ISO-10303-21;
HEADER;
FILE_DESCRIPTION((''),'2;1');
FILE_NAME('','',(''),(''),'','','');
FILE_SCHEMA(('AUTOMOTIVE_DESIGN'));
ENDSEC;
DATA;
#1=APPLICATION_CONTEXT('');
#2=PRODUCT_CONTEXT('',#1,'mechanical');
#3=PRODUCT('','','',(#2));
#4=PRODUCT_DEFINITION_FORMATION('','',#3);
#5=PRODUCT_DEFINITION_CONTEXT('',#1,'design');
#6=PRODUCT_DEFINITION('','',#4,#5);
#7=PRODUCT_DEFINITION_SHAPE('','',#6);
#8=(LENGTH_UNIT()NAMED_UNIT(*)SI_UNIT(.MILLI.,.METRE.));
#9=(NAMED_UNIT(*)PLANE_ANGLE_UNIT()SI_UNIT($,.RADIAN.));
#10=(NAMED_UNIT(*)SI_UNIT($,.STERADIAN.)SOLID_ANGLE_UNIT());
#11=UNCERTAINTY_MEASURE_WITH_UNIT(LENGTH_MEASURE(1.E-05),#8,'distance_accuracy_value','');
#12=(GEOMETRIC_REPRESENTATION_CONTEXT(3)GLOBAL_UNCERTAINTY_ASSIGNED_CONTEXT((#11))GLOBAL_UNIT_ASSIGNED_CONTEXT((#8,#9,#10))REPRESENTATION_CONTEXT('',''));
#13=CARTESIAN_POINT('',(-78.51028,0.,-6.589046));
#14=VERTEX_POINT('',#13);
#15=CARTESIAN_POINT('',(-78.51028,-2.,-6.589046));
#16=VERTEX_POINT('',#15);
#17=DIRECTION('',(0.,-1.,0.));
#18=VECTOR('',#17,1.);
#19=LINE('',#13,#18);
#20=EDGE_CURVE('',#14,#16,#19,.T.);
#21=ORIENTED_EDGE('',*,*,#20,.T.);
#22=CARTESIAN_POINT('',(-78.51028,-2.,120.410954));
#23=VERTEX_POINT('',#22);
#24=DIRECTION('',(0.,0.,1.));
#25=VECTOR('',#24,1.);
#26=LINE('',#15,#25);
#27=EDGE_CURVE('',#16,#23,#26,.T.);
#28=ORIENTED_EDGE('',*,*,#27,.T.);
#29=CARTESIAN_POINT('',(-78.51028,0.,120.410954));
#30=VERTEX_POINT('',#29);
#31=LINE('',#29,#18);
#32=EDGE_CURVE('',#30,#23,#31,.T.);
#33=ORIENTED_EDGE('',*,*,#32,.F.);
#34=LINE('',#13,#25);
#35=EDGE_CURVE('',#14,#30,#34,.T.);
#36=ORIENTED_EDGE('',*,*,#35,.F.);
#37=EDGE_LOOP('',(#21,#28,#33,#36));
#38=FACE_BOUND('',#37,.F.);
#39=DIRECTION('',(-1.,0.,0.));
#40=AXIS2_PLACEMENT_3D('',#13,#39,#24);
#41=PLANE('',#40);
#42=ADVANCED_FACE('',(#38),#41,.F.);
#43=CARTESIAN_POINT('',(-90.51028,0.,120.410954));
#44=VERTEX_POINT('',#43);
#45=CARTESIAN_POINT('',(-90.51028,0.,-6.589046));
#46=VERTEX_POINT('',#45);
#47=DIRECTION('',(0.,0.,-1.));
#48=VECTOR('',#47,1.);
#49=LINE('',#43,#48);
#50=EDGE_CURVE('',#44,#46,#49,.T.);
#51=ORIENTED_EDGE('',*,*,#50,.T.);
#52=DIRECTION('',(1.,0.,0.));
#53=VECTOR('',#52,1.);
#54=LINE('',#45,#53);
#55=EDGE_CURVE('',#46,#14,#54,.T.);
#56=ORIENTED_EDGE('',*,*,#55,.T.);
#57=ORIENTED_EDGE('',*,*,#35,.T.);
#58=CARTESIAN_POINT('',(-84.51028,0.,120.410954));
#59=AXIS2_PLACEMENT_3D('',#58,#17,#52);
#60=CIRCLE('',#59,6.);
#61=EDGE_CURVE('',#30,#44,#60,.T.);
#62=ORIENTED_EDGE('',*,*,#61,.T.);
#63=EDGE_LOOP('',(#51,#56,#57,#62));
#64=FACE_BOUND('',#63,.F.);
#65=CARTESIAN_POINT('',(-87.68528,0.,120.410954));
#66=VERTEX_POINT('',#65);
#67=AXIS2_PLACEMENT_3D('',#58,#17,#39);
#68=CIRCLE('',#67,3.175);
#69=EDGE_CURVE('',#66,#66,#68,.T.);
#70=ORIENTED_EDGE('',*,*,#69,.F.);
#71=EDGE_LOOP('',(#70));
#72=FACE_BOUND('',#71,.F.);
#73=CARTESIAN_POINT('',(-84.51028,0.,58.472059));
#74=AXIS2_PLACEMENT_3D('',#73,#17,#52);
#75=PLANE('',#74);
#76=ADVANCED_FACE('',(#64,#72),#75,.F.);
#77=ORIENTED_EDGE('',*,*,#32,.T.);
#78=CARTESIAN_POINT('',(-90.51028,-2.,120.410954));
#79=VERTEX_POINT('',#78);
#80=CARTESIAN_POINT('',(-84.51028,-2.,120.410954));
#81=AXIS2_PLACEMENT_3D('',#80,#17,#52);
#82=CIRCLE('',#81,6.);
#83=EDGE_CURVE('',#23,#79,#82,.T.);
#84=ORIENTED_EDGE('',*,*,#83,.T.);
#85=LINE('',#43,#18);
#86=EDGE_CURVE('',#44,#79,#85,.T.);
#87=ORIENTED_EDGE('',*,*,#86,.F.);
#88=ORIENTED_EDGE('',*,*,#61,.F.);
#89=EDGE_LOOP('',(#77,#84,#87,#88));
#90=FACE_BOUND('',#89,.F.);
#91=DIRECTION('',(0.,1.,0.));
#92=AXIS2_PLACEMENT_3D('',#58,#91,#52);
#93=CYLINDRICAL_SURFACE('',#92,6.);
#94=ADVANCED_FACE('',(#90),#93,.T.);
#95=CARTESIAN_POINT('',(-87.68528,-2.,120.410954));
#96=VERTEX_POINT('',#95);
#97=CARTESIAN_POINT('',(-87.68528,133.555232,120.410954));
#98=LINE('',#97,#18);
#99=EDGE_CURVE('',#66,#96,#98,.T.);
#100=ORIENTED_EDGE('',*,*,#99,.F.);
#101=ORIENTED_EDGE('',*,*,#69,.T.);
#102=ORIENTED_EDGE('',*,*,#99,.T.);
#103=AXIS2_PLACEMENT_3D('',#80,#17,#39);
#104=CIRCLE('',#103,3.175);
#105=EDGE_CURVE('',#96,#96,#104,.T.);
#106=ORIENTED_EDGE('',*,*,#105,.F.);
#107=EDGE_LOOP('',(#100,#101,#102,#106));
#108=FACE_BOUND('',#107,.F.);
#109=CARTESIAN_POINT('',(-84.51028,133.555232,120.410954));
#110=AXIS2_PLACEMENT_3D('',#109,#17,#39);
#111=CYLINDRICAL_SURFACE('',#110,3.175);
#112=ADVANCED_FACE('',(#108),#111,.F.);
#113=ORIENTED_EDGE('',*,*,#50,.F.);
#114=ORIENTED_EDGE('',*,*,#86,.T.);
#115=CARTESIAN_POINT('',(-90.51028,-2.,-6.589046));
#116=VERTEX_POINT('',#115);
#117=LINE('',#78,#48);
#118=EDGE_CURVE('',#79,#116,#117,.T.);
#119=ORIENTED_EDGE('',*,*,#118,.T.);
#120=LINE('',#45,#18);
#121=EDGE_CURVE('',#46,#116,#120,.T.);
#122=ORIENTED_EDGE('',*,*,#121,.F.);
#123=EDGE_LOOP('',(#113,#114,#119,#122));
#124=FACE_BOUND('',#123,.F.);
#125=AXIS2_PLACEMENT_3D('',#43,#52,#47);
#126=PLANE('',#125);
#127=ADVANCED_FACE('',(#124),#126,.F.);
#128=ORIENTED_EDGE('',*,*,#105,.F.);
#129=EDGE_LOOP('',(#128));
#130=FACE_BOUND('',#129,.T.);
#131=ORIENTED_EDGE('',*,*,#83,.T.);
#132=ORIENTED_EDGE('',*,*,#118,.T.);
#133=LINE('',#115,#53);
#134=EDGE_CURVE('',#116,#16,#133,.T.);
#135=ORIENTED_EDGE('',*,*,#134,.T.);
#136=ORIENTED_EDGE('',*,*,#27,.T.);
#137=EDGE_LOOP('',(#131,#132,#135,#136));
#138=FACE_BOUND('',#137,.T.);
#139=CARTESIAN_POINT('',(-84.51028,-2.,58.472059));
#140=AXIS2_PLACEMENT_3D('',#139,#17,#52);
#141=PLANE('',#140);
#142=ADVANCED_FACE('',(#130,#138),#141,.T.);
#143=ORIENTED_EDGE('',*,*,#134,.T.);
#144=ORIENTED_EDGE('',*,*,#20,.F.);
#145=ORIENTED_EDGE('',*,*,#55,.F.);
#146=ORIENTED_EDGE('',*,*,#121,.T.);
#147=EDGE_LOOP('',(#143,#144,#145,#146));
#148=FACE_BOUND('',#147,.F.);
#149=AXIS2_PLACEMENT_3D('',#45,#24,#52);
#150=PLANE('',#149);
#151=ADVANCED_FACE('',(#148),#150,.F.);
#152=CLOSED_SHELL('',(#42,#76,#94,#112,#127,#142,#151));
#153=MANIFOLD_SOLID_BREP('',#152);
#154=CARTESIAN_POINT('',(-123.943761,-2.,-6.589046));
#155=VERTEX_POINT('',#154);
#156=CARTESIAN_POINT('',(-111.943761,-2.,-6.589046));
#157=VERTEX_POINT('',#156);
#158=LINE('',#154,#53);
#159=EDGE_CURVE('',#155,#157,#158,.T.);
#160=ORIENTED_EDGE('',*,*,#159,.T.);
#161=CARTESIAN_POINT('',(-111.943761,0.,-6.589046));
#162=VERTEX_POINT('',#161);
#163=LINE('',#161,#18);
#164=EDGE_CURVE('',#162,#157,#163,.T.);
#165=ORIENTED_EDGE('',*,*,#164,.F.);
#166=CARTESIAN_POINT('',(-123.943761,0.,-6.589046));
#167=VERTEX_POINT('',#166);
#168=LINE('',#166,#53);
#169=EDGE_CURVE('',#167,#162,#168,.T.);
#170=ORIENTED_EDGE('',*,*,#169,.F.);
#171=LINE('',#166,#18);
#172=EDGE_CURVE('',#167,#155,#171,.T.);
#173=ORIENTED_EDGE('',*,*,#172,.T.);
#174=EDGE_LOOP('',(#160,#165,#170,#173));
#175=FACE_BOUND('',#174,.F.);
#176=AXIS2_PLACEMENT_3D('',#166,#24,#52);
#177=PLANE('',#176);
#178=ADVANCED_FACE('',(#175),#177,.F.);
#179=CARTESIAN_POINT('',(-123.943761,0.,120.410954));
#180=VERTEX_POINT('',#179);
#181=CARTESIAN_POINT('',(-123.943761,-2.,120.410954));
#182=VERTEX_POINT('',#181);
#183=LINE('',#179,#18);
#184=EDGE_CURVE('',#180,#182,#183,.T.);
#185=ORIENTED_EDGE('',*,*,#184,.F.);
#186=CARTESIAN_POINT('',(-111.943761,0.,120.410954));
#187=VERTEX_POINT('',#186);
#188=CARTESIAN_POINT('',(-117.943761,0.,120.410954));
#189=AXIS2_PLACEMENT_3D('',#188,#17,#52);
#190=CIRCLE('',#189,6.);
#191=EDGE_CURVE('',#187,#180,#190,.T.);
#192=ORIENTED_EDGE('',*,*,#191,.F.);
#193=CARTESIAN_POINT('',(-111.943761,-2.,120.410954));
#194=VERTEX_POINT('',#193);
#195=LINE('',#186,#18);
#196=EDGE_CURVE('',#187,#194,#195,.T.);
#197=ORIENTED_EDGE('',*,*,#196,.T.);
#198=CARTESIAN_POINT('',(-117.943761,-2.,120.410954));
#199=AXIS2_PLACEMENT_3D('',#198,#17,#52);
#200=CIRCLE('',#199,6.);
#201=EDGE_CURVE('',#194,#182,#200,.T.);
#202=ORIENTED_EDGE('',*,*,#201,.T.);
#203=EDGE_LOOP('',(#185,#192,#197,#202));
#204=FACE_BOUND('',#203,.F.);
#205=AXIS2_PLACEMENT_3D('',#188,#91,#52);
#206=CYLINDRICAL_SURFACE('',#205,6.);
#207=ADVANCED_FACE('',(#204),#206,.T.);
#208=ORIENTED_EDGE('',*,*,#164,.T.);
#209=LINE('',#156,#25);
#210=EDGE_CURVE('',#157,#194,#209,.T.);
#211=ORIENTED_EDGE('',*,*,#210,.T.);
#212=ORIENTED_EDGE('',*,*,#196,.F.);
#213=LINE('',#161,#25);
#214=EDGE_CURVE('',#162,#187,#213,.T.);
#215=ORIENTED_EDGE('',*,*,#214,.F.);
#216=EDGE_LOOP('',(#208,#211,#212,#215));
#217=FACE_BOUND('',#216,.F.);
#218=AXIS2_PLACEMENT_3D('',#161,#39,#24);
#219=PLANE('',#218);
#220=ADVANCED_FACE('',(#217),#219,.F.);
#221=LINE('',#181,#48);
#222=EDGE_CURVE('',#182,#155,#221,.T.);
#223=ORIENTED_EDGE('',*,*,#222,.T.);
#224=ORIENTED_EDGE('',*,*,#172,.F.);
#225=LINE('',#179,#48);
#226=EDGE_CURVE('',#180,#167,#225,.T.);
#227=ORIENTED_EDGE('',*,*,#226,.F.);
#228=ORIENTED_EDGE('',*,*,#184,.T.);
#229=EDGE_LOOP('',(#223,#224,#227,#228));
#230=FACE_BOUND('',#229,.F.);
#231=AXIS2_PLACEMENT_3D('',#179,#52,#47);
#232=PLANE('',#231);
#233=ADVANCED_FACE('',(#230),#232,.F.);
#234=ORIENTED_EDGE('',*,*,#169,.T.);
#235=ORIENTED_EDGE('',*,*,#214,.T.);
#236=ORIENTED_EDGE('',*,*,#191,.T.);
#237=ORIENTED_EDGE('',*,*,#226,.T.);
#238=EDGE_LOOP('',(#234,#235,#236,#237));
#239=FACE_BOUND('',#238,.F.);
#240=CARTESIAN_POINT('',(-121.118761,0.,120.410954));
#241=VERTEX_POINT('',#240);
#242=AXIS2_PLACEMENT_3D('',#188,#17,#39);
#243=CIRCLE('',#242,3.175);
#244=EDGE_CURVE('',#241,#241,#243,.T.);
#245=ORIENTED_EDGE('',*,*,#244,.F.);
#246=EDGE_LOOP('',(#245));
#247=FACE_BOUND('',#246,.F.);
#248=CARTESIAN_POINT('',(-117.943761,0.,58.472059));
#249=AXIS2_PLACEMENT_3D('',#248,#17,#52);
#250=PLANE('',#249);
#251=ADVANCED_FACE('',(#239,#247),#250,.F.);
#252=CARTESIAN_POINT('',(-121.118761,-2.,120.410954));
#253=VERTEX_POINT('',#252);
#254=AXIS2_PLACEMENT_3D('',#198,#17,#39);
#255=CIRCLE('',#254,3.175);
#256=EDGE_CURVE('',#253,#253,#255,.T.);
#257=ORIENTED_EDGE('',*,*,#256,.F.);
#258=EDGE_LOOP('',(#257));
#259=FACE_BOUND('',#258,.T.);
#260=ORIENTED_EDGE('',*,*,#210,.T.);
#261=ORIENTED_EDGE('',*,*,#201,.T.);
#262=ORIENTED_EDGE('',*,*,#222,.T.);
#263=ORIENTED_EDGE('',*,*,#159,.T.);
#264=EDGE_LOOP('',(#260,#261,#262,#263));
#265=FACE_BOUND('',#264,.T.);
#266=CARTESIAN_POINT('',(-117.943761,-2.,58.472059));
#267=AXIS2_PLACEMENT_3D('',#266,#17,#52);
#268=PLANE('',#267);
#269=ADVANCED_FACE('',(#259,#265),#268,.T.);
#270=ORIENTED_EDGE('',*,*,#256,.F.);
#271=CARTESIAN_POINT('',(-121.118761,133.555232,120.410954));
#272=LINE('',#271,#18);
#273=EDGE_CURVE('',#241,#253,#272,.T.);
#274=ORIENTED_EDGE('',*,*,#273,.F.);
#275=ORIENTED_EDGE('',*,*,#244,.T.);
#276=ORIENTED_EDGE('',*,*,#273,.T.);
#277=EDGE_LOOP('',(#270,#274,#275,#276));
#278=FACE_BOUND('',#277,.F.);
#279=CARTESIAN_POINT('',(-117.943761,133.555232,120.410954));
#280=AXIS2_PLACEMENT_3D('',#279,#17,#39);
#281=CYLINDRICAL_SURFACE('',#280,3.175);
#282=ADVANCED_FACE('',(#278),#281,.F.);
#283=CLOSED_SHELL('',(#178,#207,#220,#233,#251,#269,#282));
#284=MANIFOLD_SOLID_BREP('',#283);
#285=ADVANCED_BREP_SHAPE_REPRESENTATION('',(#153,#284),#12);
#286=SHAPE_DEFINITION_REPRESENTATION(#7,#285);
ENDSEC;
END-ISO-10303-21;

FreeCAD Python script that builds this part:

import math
import FreeCAD as App
import Part
import Sketcher
Q = App.Units.Quantity

doc = App.newDocument("Part")
body = doc.addObject("PartDesign::Body", "Body")

# Sketch on XZ plane
sketch1 = doc.addObject("Sketcher::SketchObject", "Sketch")
body.addObject(sketch1)
sketch1.AttachmentSupport = (doc.XZ_Plane, [""])
sketch1.MapMode = "FlatFace"
sketch1.addGeometry([
    Part.LineSegment(App.Vector(-111.9, -6.6, 0), App.Vector(-111.9, 120.4, 0)),  # 0
    Part.ArcOfCircle(Part.Circle(App.Vector(-117.9, 120.4, 0), App.Vector(0, 0, 1), 6), math.radians(0), math.radians(180)),  # 1
    Part.LineSegment(App.Vector(-123.9, 120.4, 0), App.Vector(-123.9, -6.6, 0)),  # 2
    Part.LineSegment(App.Vector(-123.9, -6.6, 0), App.Vector(-111.9, -6.6, 0)),  # 3
    Part.Circle(App.Vector(-117.9, 120.4, 0), App.Vector(0, 0, 1), 2.2),  # 4
], False)
sketch1.addConstraint([
    Sketcher.Constraint("Tangent", 0, 2, 1, 1),
    Sketcher.Constraint("Tangent", 1, 2, 2, 1),
    Sketcher.Constraint("Coincident", 2, 2, 3, 1),
    Sketcher.Constraint("Coincident", 3, 2, 0, 1),
    Sketcher.Constraint("Vertical", 0),
    Sketcher.Constraint("Vertical", 2),
    Sketcher.Constraint("Horizontal", 3),
    Sketcher.Constraint("Coincident", 4, 3, 1, 3),
    Sketcher.Constraint("DistanceY", 0, 1, 0, 2, Q("5 in")),
    Sketcher.Constraint("Diameter", 4, Q("0.175 in")),
    Sketcher.Constraint("Radius", 1, Q("6 mm")),
    Sketcher.Constraint("DistanceX", 1, 3, -1, 1, Q("117.943761 mm")),
    Sketcher.Constraint("DistanceY", -1, 1, 1, 3, Q("120.410954 mm")),
])
pad1 = doc.addObject("PartDesign::Pad", "Pad")
body.addObject(pad1)
pad1.Profile = sketch1
pad1.Length = 2

# Sketch on XZ plane
sketch2 = doc.addObject("Sketcher::SketchObject", "Sketch001")
body.addObject(sketch2)
sketch2.AttachmentSupport = (doc.XZ_Plane, [""])
sketch2.MapMode = "FlatFace"
sketch2.addGeometry([
    Part.Circle(App.Vector(-117.9, 120.4, 0), App.Vector(0, 0, 1), 3.2),
    Part.Circle(App.Vector(-84.5, 120.4, 0), App.Vector(0, 0, 1), 3.2),
], False)
sketch2.addConstraint([
    Sketcher.Constraint("Equal", 0, 1),
    Sketcher.Constraint("Horizontal", 0, 3, 1, 3),
    Sketcher.Constraint("Diameter", 0, Q("0.25 in")),
    Sketcher.Constraint("DistanceX", 0, 3, -1, 1, Q("117.943761 mm")),
    Sketcher.Constraint("DistanceX", 1, 3, -1, 1, Q("84.51028 mm")),
    Sketcher.Constraint("DistanceY", -1, 1, 0, 3, Q("120.410954 mm")),
])
doc.recompute()
hole = doc.addObject("PartDesign::Hole", "Hole")
body.addObject(hole)
hole.Profile = sketch2
hole.ThreadType = "None"
hole.Diameter = Q("0.25 in")
hole.DepthType = "ThroughAll"
hole.Reversed = True
body2 = doc.addObject("PartDesign::Body", "Body001")

# Sketch on XZ plane
sketch3 = doc.addObject("Sketcher::SketchObject", "Sketch002")
body2.addObject(sketch3)
sketch3.AttachmentSupport = (doc.getObject("XZ_Plane001"), [""])
sketch3.MapMode = "FlatFace"
sketch3.addGeometry([
    Part.ArcOfCircle(Part.Circle(App.Vector(-84.5, 120.4, 0), App.Vector(0, 0, 1), 6), math.radians(0), math.radians(180)),  # 0
    Part.LineSegment(App.Vector(-90.5, 120.4, 0), App.Vector(-90.5, -6.6, 0)),  # 1
    Part.LineSegment(App.Vector(-90.5, -6.6, 0), App.Vector(-78.5, -6.6, 0)),  # 2
    Part.LineSegment(App.Vector(-78.5, -6.6, 0), App.Vector(-78.5, 120.4, 0)),  # 3
    Part.Circle(App.Vector(-84.5, 120.4, 0), App.Vector(0, 0, 1), 2.2),  # 4
], False)
sketch3.addConstraint([
    Sketcher.Constraint("Tangent", 0, 2, 1, 1),
    Sketcher.Constraint("Coincident", 1, 2, 2, 1),
    Sketcher.Constraint("Coincident", 2, 2, 3, 1),
    Sketcher.Constraint("Tangent", 3, 2, 0, 1),
    Sketcher.Constraint("Vertical", 1),
    Sketcher.Constraint("Horizontal", 2),
    Sketcher.Constraint("Vertical", 3),
    Sketcher.Constraint("Coincident", 4, 3, 0, 3),
    Sketcher.Constraint("DistanceY", 1, 2, 1, 1, Q("5 in")),
    Sketcher.Constraint("Diameter", 4, Q("0.175 in")),
    Sketcher.Constraint("Radius", 0, Q("6 mm")),
    Sketcher.Constraint("DistanceX", 0, 3, -1, 1, Q("84.51028 mm")),
    Sketcher.Constraint("DistanceY", -1, 1, 0, 3, Q("120.410954 mm")),
])
pad2 = doc.addObject("PartDesign::Pad", "Pad001")
body2.addObject(pad2)
pad2.Profile = sketch3
pad2.Length = 2

# Sketch on XZ plane
sketch4 = doc.addObject("Sketcher::SketchObject", "Sketch003")
body2.addObject(sketch4)
sketch4.AttachmentSupport = (doc.getObject("XZ_Plane001"), [""])
sketch4.MapMode = "FlatFace"
sketch4.addGeometry([
    Part.Circle(App.Vector(-117.9, 120.4, 0), App.Vector(0, 0, 1), 3.2),
    Part.Circle(App.Vector(-84.5, 120.4, 0), App.Vector(0, 0, 1), 3.2),
], False)
sketch4.addConstraint([
    Sketcher.Constraint("Equal", 0, 1),
    Sketcher.Constraint("Horizontal", 0, 3, 1, 3),
    Sketcher.Constraint("Diameter", 0, Q("0.25 in")),
    Sketcher.Constraint("DistanceX", 0, 3, -1, 1, Q("117.943761 mm")),
    Sketcher.Constraint("DistanceX", 1, 3, -1, 1, Q("84.51028 mm")),
    Sketcher.Constraint("DistanceY", -1, 1, 0, 3, Q("120.410954 mm")),
])
doc.recompute()
hole2 = doc.addObject("PartDesign::Hole", "Hole001")
body2.addObject(hole2)
hole2.Profile = sketch4
hole2.ThreadType = "None"
hole2.Diameter = Q("0.25 in")
hole2.DepthType = "ThroughAll"
hole2.Reversed = True

doc.recompute()
